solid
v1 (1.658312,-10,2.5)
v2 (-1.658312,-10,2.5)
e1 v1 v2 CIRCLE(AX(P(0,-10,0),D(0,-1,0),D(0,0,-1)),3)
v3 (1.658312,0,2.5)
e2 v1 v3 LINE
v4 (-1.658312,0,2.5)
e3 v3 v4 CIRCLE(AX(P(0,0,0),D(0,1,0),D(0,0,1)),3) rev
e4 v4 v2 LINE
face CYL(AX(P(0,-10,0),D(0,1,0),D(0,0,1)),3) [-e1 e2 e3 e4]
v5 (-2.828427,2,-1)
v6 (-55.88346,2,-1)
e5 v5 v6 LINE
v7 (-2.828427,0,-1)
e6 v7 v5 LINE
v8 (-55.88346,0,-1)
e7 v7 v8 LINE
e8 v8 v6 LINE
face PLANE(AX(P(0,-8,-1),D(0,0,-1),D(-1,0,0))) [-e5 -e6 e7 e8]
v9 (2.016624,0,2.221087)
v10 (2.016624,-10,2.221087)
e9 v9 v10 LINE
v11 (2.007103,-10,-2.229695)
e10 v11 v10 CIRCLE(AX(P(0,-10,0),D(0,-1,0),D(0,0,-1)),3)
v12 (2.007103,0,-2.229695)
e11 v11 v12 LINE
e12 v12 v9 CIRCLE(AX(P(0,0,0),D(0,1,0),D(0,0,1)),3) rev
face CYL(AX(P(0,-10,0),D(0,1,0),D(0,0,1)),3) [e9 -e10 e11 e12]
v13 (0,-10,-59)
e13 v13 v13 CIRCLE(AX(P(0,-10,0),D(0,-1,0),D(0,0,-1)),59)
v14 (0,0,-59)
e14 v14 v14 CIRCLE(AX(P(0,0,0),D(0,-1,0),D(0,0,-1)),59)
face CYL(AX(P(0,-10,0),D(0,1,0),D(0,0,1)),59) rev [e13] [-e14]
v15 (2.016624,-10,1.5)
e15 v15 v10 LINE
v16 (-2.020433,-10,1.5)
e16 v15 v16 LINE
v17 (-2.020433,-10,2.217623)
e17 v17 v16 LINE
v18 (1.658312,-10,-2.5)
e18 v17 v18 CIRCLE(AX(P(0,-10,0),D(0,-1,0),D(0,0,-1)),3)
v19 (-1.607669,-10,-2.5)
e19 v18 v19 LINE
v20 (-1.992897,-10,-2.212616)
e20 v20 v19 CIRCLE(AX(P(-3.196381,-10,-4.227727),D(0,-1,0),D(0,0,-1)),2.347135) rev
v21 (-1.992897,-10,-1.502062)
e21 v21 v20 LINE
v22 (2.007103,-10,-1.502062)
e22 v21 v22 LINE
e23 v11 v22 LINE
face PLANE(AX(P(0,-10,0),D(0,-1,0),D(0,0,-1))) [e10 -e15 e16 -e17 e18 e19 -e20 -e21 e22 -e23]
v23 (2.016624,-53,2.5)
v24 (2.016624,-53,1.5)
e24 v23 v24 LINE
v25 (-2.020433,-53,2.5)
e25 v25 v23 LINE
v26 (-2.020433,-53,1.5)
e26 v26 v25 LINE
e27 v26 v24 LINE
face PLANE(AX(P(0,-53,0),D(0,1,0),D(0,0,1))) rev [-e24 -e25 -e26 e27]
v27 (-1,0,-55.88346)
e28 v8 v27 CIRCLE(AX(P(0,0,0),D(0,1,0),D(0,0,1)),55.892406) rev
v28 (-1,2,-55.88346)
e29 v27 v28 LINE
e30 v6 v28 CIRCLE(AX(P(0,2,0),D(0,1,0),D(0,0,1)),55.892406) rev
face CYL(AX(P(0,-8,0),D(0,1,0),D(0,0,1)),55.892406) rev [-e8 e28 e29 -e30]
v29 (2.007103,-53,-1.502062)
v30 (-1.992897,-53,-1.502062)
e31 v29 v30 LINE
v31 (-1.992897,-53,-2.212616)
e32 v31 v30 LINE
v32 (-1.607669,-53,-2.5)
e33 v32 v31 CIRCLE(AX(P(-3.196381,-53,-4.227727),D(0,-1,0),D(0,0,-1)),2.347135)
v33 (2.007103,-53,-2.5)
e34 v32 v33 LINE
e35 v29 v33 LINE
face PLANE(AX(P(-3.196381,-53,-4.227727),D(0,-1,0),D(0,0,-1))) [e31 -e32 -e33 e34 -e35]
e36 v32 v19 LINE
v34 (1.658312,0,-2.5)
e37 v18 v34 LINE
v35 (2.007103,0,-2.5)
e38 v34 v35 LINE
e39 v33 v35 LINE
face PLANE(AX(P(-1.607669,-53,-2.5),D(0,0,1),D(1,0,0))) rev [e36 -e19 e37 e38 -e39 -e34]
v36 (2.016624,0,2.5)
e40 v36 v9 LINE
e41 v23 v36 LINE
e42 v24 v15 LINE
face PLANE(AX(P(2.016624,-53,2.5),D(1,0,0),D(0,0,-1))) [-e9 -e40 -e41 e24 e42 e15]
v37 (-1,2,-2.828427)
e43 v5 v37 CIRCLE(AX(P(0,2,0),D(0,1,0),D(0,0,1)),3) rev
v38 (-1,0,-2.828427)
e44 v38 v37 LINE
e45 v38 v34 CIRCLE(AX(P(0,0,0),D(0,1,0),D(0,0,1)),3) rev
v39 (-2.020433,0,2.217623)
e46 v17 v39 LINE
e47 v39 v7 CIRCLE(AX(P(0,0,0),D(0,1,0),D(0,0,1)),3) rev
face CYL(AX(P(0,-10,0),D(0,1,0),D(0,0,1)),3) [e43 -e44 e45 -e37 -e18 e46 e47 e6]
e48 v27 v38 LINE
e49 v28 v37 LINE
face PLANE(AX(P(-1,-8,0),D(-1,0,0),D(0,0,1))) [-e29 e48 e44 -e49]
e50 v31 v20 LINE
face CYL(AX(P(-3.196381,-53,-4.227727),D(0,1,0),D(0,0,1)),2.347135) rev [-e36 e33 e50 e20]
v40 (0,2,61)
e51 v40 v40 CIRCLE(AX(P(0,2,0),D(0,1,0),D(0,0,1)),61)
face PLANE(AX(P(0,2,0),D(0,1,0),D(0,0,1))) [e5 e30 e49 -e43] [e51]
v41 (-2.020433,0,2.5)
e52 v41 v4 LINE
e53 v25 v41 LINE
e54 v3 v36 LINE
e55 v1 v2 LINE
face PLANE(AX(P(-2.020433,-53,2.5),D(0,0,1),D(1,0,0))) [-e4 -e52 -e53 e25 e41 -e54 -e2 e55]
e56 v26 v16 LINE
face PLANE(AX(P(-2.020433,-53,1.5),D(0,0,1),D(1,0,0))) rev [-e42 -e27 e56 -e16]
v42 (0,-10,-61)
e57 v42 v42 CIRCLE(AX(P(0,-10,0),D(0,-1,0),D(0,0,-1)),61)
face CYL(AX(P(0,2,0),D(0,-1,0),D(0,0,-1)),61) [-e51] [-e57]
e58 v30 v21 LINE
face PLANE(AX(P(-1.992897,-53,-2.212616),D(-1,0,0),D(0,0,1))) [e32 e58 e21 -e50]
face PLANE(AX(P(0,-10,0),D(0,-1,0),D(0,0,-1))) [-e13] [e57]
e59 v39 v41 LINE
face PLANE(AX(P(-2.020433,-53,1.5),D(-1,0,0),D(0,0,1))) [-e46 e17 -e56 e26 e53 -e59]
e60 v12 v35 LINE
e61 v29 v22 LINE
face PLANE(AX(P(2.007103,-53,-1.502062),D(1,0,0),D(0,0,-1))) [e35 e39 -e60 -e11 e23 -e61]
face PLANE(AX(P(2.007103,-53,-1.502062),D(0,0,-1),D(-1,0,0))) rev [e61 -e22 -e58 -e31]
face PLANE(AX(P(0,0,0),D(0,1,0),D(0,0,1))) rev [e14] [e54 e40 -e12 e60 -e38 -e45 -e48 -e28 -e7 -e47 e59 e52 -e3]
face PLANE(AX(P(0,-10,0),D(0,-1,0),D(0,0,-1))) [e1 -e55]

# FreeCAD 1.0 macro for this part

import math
import FreeCAD as App
import Part
import Sketcher

doc = App.newDocument("Part")
body = doc.addObject("PartDesign::Body", "Body")

sketch1 = doc.addObject("Sketcher::SketchObject", "Sketch")
body.addObject(sketch1)
sketch1.AttachmentSupport = (doc.XZ_Plane, [""])
sketch1.MapMode = "FlatFace"
sketch1.addGeometry(Part.Circle(App.Vector(0, 0, 0), App.Vector(0, 0, 1), 61), False)
sketch1.addConstraint([
    Sketcher.Constraint("Coincident", 0, 3, -1, 1),
    Sketcher.Constraint("Diameter", 0, 122.0),
])
pad1 = doc.addObject("PartDesign::Pad", "Pad")
body.addObject(pad1)
pad1.Profile = sketch1
pad1.Length = 2
pad1.Reversed = True

sketch2 = doc.addObject("Sketcher::SketchObject", "Sketch001")
body.addObject(sketch2)
sketch2.AttachmentSupport = (doc.XZ_Plane, [""])
sketch2.MapMode = "FlatFace"
sketch2.AttachmentOffset = App.Placement(App.Vector(0, 0, 10), App.Rotation())
sketch2.addGeometry([
    Part.Circle(App.Vector(0, 0, 0), App.Vector(0, 0, 1), 61),
    Part.Circle(App.Vector(0, 0, 0), App.Vector(0, 0, 1), 59),
], False)
sketch2.addConstraint([
    Sketcher.Constraint("Coincident", 0, 3, -1, 1),
    Sketcher.Constraint("Coincident", 1, 3, -1, 1),
    Sketcher.Constraint("Diameter", 0, 122.0),
    Sketcher.Constraint("Diameter", 1, 118.0),
])
pad2 = doc.addObject("PartDesign::Pad", "Pad001")
body.addObject(pad2)
pad2.Profile = sketch2
pad2.Length = 10
pad2.Reversed = True

sketch3 = doc.addObject("Sketcher::SketchObject", "Sketch002")
body.addObject(sketch3)
sketch3.AttachmentSupport = (doc.XZ_Plane, [""])
sketch3.MapMode = "FlatFace"
sketch3.addGeometry(Part.Circle(App.Vector(0, 0, 0), App.Vector(0, 0, 1), 3), False)
sketch3.addConstraint([
    Sketcher.Constraint("Coincident", 0, 3, -1, 1),
    Sketcher.Constraint("Diameter", 0, 6.0),
])
pad3 = doc.addObject("PartDesign::Pad", "Pad002")
body.addObject(pad3)
pad3.Profile = sketch3
pad3.Length = 10

sketch4 = doc.addObject("Sketcher::SketchObject", "Sketch003")
body.addObject(sketch4)
sketch4.AttachmentSupport = (doc.XZ_Plane, [""])
sketch4.MapMode = "FlatFace"
sketch4.AttachmentOffset = App.Placement(App.Vector(0, 0, -2), App.Rotation())
sketch4.addGeometry([
    Part.ArcOfCircle(Part.Circle(App.Vector(0, 0, 0), App.Vector(0, 0, 1), 55.9), math.radians(-179), math.radians(-91)),
    Part.LineSegment(App.Vector(-55.9, -1, 0), App.Vector(-2.8, -1, 0)),
    Part.ArcOfCircle(Part.Circle(App.Vector(0, 0, 0), App.Vector(0, 0, 1), 3), math.radians(-161), math.radians(-109)),
    Part.LineSegment(App.Vector(-1, -2.8, 0), App.Vector(-1, -55.9, 0)),
], False)
sketch4.addConstraint([
    Sketcher.Constraint("Coincident", 0, 1, 1, 1),
    Sketcher.Constraint("Coincident", 1, 2, 2, 1),
    Sketcher.Constraint("Coincident", 2, 2, 3, 1),
    Sketcher.Constraint("Coincident", 3, 2, 0, 2),
    Sketcher.Constraint("Horizontal", 1),
    Sketcher.Constraint("Vertical", 3),
    Sketcher.Constraint("Coincident", 0, 3, -1, 1),
    Sketcher.Constraint("Coincident", 2, 3, -1, 1),
    Sketcher.Constraint("Equal", 1, 3),
    Sketcher.Constraint("Radius", 2, 3.0),
    Sketcher.Constraint("DistanceY", 0, 1, -1, 1, 1.0),
    Sketcher.Constraint("Radius", 0, 55.892406),
])
pocket1 = doc.addObject("PartDesign::Pocket", "Pocket")
body.addObject(pocket1)
pocket1.Profile = sketch4
pocket1.Length = 10
pocket1.Reversed = True

sketch5 = doc.addObject("Sketcher::SketchObject", "Sketch004")
body.addObject(sketch5)
sketch5.AttachmentSupport = (doc.XZ_Plane, [""])
sketch5.MapMode = "FlatFace"
sketch5.addGeometry([
    Part.LineSegment(App.Vector(2.02, 1.5, 0), App.Vector(2.02, 2.5, 0)),
    Part.LineSegment(App.Vector(2.02, 2.5, 0), App.Vector(-2.02, 2.5, 0)),
    Part.LineSegment(App.Vector(-2.02, 2.5, 0), App.Vector(-2.02, 1.5, 0)),
    Part.LineSegment(App.Vector(-2.02, 1.5, 0), App.Vector(2.02, 1.5, 0)),
    Part.LineSegment(App.Vector(2.01, -2.5, 0), App.Vector(2.01, -1.5, 0)),
    Part.LineSegment(App.Vector(2.01, -1.5, 0), App.Vector(-1.99, -1.5, 0)),
    Part.LineSegment(App.Vector(-1.99, -1.5, 0), App.Vector(-1.99, -2.21, 0)),
    Part.ArcOfCircle(Part.Circle(App.Vector(-3.2, -4.23, 0), App.Vector(0, 0, 1), 2.35), math.radians(47.4), math.radians(59.15)),
    Part.LineSegment(App.Vector(-1.61, -2.5, 0), App.Vector(2.01, -2.5, 0)),
], False)
sketch5.addConstraint([
    Sketcher.Constraint("Coincident", 0, 2, 1, 1),
    Sketcher.Constraint("Coincident", 1, 2, 2, 1),
    Sketcher.Constraint("Coincident", 2, 2, 3, 1),
    Sketcher.Constraint("Coincident", 3, 2, 0, 1),
    Sketcher.Constraint("Coincident", 4, 2, 5, 1),
    Sketcher.Constraint("Coincident", 5, 2, 6, 1),
    Sketcher.Constraint("Coincident", 6, 2, 7, 2),
    Sketcher.Constraint("Coincident", 7, 1, 8, 1),
    Sketcher.Constraint("Coincident", 8, 2, 4, 1),
    Sketcher.Constraint("Vertical", 0),
    Sketcher.Constraint("Horizontal", 1),
    Sketcher.Constraint("Vertical", 2),
    Sketcher.Constraint("Horizontal", 3),
    Sketcher.Constraint("Vertical", 4),
    Sketcher.Constraint("Horizontal", 5),
    Sketcher.Constraint("Vertical", 6),
    Sketcher.Constraint("Horizontal", 8),
    Sketcher.Constraint("DistanceX", 5, 2, 5, 1, 4.0),
    Sketcher.Constraint("DistanceY", 0, 1, 0, 2, 1.0),
    Sketcher.Constraint("DistanceY", 7, 1, 2, 2, 4.0),
    Sketcher.Constraint("DistanceY", -1, 1, 0, 2, 2.5),
    Sketcher.Constraint("Radius", 7, 2.347135),
    Sketcher.Constraint("DistanceY", 4, 1, 4, 2, 0.997938),
    Sketcher.Constraint("DistanceX", 1, 2, 1, 1, 4.037057),
    Sketcher.Constraint("DistanceX", 8, 1, 8, 2, 3.614772),
    Sketcher.Constraint("DistanceY", 6, 2, 6, 1, 0.710555),
    Sketcher.Constraint("DistanceX", 7, 3, -1, 1, 3.196381),
    Sketcher.Constraint("DistanceX", 7, 3, 1, 2, 1.175948),
])
pad4 = doc.addObject("PartDesign::Pad", "Pad003")
body.addObject(pad4)
pad4.Profile = sketch5
pad4.Length = 53

doc.recompute()
